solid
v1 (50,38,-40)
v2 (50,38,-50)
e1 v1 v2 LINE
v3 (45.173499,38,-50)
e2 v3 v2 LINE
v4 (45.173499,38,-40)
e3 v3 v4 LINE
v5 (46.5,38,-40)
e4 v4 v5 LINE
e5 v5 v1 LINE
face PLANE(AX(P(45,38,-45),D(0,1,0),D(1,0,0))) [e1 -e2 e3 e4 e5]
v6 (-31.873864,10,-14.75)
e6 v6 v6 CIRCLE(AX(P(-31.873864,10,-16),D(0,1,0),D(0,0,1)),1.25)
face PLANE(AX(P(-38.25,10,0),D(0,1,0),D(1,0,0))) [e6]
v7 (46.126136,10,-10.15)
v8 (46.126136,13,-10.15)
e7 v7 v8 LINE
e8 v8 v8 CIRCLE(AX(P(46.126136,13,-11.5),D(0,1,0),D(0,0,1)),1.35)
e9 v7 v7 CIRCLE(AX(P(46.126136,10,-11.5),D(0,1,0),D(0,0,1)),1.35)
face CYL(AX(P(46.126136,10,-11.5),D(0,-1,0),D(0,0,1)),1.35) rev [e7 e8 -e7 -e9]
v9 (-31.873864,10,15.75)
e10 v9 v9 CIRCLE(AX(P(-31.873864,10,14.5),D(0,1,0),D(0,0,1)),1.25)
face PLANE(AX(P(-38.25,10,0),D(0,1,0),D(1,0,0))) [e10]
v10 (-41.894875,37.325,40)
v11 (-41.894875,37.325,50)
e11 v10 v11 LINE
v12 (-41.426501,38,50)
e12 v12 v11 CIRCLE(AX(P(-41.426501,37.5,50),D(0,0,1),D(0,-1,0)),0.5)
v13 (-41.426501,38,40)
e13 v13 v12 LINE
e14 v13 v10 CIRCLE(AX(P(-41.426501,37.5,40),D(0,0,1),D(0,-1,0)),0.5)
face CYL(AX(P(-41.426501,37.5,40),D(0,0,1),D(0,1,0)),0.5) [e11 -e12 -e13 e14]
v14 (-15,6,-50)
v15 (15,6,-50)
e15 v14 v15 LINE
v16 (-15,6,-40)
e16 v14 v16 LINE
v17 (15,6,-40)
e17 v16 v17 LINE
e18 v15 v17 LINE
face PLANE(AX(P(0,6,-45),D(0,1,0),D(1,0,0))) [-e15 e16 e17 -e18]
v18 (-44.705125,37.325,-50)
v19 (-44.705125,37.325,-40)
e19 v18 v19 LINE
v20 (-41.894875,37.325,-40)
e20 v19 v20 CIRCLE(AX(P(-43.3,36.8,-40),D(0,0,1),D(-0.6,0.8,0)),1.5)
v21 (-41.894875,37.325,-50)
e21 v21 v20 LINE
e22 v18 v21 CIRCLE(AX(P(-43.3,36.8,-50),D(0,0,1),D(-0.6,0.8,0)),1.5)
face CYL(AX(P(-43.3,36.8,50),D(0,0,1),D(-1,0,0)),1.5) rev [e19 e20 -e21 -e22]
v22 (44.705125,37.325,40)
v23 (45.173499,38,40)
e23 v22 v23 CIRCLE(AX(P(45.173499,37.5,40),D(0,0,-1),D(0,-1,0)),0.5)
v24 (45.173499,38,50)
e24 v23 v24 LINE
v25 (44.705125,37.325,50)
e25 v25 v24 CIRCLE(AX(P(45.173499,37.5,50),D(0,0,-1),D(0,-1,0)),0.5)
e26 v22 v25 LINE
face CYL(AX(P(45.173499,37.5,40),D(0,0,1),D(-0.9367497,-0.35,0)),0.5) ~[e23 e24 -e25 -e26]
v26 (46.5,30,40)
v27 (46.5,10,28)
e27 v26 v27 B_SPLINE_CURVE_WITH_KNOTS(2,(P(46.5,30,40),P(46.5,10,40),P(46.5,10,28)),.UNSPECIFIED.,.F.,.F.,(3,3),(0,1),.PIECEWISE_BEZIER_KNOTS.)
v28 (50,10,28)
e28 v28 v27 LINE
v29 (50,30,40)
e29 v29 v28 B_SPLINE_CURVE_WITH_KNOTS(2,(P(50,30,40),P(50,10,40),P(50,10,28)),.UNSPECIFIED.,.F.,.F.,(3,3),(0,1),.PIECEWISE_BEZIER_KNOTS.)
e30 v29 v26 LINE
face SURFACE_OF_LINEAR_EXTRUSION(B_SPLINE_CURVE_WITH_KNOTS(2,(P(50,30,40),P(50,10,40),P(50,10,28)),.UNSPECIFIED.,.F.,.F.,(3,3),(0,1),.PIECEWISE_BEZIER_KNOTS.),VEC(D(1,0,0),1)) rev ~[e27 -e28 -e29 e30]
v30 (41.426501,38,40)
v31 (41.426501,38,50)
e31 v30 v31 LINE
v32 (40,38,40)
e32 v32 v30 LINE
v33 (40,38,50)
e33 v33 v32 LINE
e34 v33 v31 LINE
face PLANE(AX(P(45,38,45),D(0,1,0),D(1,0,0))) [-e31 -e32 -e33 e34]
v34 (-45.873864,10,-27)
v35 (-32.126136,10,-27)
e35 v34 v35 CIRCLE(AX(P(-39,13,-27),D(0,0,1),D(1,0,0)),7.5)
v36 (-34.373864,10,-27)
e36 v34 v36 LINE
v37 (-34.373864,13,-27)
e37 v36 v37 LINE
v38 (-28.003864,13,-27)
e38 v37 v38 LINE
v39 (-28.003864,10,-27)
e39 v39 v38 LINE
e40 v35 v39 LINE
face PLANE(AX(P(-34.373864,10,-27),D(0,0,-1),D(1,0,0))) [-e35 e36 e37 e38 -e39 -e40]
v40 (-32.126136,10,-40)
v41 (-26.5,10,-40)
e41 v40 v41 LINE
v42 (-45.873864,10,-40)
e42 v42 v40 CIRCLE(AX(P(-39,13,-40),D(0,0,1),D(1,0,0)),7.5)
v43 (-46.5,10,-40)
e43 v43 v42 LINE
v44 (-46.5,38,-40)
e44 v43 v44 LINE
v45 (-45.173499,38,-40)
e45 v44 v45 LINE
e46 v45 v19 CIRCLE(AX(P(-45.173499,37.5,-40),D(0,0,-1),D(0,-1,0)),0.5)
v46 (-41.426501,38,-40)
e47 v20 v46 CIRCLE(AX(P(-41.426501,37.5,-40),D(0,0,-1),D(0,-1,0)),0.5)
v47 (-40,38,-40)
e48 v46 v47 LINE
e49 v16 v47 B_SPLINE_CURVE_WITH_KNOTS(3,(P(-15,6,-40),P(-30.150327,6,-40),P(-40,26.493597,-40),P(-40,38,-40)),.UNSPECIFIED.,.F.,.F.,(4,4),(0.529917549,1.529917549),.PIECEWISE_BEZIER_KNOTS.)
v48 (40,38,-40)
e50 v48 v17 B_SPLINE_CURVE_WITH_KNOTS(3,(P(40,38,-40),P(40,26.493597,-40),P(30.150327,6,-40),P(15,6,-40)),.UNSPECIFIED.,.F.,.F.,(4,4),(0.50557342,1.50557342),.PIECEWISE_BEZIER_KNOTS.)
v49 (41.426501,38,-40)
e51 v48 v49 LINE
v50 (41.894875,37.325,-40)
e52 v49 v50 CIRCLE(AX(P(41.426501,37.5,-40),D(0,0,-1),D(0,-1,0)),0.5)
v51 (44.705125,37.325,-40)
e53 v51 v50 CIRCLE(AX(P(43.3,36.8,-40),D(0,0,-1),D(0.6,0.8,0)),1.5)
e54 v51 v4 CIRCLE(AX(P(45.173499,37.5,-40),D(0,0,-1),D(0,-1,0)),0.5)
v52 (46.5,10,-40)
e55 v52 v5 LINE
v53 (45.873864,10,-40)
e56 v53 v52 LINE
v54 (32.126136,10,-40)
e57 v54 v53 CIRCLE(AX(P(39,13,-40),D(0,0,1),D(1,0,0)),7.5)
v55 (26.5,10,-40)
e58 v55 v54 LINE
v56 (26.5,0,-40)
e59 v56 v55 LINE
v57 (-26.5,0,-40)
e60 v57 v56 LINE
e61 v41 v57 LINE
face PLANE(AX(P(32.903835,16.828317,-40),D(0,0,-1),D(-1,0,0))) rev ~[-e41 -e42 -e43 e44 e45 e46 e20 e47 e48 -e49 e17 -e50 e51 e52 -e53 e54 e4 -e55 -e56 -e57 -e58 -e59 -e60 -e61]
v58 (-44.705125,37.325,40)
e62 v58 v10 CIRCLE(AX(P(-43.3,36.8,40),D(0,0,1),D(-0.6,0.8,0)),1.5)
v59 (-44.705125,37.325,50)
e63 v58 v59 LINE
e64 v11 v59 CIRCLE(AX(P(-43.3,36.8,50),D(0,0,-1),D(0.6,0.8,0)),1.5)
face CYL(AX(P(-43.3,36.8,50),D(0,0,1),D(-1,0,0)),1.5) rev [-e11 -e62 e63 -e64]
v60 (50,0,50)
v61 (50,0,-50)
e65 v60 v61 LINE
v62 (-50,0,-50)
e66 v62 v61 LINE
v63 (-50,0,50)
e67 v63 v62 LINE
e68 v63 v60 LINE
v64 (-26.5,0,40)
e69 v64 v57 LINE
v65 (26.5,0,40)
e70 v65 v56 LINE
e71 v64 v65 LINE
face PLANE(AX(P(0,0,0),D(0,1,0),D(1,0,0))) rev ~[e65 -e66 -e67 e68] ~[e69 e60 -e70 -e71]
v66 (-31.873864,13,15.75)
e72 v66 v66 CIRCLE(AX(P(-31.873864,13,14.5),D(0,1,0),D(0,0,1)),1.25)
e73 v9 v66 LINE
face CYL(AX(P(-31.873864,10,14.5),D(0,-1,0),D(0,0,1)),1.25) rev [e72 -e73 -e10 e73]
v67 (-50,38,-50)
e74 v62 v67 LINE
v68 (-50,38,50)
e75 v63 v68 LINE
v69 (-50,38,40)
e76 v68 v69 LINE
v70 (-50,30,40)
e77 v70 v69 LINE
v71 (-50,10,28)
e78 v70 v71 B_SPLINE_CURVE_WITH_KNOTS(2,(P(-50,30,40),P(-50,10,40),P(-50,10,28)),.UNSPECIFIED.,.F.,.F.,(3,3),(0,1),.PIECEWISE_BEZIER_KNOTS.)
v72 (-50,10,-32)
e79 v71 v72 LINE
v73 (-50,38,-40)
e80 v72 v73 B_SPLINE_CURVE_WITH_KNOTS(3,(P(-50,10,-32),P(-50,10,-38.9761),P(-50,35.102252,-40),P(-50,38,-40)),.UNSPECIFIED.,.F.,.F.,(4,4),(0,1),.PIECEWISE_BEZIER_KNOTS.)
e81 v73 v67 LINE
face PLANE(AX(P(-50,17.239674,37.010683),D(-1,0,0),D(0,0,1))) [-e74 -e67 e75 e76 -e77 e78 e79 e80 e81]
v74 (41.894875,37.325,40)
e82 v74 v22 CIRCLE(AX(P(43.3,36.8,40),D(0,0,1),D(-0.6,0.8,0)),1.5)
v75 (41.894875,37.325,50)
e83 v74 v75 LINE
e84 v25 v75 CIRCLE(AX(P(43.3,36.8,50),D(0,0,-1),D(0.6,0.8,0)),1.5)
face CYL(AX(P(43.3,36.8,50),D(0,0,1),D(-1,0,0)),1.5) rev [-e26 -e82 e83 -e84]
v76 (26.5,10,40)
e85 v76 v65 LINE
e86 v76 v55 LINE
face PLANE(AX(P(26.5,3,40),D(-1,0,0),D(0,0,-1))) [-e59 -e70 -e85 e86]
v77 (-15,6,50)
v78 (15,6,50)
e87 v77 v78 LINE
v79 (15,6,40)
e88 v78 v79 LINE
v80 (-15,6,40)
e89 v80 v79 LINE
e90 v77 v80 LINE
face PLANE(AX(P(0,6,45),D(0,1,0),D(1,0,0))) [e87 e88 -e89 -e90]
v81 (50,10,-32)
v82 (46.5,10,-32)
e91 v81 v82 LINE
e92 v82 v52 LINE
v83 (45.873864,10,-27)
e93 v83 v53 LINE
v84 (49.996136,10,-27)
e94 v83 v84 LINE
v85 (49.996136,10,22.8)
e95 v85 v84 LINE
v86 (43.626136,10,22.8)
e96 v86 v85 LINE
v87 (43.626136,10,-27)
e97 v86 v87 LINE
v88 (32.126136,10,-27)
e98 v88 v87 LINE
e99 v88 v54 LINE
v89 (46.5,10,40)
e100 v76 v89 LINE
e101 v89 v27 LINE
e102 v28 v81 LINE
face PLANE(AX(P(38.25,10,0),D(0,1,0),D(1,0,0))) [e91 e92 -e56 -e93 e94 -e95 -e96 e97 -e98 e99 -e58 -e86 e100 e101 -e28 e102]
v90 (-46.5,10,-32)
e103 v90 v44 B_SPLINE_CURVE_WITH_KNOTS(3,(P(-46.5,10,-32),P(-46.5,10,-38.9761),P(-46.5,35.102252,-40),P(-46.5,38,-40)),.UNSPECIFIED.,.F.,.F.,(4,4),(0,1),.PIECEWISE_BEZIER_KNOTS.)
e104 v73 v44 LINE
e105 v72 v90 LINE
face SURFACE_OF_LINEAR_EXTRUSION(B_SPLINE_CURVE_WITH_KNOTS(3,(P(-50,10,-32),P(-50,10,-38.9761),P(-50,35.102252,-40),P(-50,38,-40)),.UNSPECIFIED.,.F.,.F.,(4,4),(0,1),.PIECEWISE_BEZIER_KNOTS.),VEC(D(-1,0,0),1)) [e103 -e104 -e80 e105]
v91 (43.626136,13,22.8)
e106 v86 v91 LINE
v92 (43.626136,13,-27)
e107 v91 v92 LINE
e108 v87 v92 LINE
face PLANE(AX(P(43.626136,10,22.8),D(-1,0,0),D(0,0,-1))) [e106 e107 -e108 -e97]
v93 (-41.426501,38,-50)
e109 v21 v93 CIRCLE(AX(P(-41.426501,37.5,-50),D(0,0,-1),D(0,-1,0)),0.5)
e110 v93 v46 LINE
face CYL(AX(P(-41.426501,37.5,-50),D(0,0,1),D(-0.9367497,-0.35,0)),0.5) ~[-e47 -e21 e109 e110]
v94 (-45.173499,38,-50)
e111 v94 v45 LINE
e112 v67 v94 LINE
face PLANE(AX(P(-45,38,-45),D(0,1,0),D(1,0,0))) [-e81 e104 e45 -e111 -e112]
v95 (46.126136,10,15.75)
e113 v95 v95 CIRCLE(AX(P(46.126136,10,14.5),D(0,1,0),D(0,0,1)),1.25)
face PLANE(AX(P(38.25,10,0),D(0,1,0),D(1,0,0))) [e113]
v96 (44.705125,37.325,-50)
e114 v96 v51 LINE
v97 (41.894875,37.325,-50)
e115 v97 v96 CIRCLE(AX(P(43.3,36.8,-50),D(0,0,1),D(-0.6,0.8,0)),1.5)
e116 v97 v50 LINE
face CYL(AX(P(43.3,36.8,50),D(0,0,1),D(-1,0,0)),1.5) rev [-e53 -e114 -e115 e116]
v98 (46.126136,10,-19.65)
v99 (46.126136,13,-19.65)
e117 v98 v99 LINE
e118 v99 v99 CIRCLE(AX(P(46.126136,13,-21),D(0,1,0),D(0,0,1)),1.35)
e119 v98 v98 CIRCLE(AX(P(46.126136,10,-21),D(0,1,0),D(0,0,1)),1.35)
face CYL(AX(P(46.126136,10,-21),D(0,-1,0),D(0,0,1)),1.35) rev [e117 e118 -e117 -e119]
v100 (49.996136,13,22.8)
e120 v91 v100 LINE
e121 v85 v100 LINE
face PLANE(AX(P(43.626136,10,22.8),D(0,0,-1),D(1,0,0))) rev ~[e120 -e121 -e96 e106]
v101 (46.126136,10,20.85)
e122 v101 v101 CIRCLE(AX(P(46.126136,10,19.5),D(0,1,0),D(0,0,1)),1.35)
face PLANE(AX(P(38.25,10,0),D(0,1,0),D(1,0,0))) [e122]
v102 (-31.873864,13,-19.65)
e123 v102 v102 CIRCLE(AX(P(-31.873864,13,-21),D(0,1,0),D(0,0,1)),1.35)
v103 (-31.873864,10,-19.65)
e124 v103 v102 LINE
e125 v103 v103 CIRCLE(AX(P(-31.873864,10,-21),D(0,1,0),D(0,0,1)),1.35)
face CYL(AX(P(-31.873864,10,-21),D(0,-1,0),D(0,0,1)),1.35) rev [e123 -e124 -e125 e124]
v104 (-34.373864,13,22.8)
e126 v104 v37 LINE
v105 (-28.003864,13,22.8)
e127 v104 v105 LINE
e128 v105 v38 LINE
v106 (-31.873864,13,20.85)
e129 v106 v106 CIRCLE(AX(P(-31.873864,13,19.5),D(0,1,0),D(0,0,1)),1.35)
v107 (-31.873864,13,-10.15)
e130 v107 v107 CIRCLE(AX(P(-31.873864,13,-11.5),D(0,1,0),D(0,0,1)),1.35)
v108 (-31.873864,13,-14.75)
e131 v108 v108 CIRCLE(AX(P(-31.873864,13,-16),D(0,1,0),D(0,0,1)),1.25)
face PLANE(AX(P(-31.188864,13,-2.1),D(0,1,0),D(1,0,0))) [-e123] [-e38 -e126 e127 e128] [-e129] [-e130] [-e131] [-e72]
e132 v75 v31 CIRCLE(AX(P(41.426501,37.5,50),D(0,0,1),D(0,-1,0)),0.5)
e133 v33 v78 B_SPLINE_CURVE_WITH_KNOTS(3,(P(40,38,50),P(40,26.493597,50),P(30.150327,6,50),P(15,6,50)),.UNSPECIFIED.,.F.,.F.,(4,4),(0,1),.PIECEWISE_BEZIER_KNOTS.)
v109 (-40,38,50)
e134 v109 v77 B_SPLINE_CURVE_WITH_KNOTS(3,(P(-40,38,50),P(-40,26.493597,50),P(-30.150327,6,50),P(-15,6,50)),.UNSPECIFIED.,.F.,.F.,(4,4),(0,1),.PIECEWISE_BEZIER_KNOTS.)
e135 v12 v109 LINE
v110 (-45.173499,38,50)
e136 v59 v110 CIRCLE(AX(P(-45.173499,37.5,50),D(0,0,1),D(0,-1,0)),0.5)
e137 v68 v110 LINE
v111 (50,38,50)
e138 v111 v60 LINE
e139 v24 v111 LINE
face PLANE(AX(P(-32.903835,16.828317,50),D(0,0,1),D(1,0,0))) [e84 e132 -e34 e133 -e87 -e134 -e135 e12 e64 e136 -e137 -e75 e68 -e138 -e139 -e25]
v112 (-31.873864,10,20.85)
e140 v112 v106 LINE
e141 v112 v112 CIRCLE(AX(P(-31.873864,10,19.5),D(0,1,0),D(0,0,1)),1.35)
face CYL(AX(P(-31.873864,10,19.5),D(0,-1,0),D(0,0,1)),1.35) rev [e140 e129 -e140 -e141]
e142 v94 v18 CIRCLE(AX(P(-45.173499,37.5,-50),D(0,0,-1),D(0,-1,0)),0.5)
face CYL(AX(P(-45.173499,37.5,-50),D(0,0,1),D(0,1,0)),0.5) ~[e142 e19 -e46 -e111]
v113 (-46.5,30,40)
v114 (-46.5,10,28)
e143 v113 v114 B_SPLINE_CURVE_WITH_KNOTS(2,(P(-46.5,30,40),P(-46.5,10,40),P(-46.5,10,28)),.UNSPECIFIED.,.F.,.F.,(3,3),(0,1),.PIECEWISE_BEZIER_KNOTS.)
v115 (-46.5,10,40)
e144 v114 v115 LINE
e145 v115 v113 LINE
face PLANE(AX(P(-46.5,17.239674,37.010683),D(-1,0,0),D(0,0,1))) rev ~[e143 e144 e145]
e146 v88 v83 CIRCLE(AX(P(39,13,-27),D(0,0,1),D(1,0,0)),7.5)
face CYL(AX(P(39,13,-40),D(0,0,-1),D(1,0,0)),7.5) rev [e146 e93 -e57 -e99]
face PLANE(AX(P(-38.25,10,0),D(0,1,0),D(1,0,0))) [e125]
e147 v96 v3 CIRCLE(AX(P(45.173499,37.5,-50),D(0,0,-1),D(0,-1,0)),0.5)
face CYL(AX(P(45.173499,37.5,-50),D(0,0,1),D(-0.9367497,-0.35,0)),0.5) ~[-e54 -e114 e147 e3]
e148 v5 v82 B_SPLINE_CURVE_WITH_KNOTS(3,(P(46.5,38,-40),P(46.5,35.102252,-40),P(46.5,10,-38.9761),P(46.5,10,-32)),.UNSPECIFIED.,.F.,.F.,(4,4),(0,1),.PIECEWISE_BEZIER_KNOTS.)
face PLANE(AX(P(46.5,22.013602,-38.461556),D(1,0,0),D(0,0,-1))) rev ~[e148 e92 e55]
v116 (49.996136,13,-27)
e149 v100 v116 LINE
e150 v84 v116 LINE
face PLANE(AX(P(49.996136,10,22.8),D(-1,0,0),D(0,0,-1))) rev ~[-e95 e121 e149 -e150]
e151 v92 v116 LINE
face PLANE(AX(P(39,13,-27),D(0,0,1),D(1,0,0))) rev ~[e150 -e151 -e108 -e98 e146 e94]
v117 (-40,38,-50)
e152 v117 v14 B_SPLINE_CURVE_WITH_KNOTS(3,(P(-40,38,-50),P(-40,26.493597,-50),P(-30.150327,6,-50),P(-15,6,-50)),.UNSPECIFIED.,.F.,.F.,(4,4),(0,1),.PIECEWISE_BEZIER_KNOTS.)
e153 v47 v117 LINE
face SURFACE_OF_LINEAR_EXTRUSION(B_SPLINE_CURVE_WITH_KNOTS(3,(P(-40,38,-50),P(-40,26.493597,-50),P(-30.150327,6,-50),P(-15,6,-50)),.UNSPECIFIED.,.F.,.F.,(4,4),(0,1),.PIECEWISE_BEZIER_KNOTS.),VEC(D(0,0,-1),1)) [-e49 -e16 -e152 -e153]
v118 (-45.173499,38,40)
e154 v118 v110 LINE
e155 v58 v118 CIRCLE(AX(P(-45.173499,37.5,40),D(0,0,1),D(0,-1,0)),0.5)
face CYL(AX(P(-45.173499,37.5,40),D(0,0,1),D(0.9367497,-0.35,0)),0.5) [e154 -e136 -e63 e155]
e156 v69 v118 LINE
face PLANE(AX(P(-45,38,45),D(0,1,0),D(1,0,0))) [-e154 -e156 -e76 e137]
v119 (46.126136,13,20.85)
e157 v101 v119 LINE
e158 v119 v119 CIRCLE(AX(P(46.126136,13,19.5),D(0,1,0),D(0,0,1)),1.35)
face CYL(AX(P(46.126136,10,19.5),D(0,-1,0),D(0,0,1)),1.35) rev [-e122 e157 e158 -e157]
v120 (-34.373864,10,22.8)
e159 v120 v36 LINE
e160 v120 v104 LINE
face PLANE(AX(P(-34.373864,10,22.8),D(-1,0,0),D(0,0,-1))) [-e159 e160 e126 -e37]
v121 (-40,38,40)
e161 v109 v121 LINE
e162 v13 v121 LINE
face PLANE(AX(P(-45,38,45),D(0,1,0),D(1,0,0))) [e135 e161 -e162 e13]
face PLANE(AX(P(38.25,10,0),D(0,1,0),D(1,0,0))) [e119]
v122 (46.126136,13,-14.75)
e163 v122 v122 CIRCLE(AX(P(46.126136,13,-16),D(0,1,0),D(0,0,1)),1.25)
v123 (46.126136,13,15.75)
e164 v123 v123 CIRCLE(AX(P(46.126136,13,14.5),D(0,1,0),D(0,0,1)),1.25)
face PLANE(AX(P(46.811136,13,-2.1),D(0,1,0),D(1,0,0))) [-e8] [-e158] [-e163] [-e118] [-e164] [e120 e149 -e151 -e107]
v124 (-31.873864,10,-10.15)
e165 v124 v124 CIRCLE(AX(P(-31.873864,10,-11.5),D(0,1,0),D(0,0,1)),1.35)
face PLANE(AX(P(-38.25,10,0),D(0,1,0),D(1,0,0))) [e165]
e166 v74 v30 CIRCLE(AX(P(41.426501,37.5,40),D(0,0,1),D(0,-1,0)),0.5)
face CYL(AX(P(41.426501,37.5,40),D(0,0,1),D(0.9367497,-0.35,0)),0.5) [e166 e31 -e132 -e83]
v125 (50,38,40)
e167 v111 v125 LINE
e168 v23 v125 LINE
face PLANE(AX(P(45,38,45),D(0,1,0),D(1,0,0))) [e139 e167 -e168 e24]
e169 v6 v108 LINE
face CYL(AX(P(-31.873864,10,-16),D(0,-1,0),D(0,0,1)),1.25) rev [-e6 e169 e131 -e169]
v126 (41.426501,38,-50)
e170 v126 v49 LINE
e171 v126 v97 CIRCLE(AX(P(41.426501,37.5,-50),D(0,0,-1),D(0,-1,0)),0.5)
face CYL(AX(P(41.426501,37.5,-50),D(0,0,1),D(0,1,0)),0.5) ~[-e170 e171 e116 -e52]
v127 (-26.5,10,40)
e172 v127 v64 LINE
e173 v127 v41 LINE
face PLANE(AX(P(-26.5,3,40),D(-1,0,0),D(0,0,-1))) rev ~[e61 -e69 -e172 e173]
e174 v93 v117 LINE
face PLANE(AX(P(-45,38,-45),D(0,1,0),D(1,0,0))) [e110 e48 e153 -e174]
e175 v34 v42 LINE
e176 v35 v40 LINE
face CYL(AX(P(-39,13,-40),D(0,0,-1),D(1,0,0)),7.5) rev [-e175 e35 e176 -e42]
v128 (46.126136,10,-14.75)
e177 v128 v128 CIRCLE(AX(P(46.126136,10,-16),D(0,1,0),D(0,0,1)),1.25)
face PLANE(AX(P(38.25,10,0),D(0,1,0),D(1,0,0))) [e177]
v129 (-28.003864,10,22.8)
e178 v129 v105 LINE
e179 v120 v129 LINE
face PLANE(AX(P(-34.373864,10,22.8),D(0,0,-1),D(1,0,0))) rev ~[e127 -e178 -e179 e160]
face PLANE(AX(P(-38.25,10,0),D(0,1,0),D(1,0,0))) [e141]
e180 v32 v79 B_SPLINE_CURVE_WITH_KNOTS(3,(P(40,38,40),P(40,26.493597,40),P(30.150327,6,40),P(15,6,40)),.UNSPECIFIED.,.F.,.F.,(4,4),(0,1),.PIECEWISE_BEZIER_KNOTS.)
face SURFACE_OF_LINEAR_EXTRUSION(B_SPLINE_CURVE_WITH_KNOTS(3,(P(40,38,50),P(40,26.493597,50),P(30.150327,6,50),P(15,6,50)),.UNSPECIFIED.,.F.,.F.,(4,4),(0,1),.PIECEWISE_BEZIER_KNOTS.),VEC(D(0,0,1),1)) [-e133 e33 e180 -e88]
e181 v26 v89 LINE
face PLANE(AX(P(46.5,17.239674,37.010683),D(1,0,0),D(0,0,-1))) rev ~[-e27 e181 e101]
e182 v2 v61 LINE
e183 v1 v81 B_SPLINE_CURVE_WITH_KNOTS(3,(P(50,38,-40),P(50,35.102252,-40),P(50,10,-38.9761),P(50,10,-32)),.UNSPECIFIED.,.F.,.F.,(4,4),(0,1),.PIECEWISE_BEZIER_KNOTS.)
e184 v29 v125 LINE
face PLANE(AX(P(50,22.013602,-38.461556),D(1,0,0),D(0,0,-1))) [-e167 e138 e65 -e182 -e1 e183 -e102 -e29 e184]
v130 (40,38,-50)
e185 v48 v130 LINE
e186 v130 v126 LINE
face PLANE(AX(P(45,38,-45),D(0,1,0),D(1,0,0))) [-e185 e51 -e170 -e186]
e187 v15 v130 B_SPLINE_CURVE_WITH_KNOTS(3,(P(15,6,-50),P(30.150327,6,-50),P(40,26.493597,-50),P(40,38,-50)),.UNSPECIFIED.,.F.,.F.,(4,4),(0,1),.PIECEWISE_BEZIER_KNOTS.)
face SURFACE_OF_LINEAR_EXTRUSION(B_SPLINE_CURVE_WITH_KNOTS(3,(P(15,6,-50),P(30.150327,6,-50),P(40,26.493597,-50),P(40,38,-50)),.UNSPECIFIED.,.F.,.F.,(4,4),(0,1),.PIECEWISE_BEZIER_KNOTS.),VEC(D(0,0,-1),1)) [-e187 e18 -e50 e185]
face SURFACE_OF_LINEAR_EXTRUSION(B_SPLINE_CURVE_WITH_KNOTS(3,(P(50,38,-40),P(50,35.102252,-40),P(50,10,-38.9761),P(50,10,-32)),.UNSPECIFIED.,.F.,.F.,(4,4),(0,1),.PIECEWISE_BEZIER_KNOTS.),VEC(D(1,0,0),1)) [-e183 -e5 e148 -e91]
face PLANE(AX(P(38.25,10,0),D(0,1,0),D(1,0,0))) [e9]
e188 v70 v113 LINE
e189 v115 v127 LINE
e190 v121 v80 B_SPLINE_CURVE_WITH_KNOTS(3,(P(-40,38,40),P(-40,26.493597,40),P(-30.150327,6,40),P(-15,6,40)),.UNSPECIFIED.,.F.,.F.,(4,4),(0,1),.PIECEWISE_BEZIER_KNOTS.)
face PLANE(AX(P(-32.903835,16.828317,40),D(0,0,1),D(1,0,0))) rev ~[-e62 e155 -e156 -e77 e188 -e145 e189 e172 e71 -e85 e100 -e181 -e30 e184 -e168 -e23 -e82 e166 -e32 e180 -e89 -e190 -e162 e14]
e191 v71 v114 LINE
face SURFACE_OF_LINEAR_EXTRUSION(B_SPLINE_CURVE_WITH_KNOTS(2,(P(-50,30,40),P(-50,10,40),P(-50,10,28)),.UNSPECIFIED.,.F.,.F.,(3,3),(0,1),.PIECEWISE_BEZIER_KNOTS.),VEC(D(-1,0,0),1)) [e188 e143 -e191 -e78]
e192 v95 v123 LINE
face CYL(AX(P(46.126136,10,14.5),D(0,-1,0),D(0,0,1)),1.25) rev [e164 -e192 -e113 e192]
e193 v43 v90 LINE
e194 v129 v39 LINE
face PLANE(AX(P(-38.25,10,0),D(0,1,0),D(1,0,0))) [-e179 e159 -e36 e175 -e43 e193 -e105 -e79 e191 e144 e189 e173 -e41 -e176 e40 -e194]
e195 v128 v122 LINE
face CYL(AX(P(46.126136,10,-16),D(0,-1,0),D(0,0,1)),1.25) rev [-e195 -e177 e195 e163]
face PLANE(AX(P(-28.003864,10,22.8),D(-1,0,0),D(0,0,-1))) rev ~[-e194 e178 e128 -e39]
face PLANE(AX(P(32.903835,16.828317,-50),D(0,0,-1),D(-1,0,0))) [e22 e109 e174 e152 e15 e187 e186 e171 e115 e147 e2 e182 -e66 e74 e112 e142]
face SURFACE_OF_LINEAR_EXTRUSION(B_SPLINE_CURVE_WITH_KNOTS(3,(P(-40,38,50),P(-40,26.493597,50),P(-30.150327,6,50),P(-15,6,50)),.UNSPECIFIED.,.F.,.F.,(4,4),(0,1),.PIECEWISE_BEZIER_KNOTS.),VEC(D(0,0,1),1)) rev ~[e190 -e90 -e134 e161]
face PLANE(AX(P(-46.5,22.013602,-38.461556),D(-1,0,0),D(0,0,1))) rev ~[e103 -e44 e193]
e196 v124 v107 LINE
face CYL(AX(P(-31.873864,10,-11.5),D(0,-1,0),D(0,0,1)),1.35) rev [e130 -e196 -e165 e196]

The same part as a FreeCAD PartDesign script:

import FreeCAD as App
import Part
import Sketcher
Q = App.Units.Quantity


def edges_at(feature, points):
    """Names of the edges that pass closest to the given points."""
    edges = feature.Shape.Edges
    near = lambda p: min(range(len(edges)), key=lambda i: edges[i].distToShape(Part.Vertex(*p))[0])
    return sorted({f"Edge{near(p) + 1}" for p in points})

doc = App.newDocument("Part")
body = doc.addObject("PartDesign::Body", "Body")

# Sketch on XZ plane
sketch1 = doc.addObject("Sketcher::SketchObject", "Sketch")
body.addObject(sketch1)
sketch1.AttachmentSupport = (doc.XZ_Plane, [""])
sketch1.MapMode = "FlatFace"
sketch1.addGeometry([
    Part.LineSegment(App.Vector(-50, -50, 0), App.Vector(-50, 50, 0)),
    Part.LineSegment(App.Vector(-50, 50, 0), App.Vector(50, 50, 0)),
    Part.LineSegment(App.Vector(50, 50, 0), App.Vector(50, -50, 0)),
    Part.LineSegment(App.Vector(50, -50, 0), App.Vector(-50, -50, 0)),
], False)
sketch1.addConstraint([
    Sketcher.Constraint("Coincident", 0, 2, 1, 1),
    Sketcher.Constraint("Coincident", 1, 2, 2, 1),
    Sketcher.Constraint("Coincident", 2, 2, 3, 1),
    Sketcher.Constraint("Coincident", 3, 2, 0, 1),
    Sketcher.Constraint("Vertical", 0),
    Sketcher.Constraint("Horizontal", 1),
    Sketcher.Constraint("Vertical", 2),
    Sketcher.Constraint("Horizontal", 3),
    Sketcher.Constraint("Symmetric", 0, 2, 2, 2, -1, 1),
    Sketcher.Constraint("Equal", 3, 0),
    Sketcher.Constraint("DistanceX", 1, 1, 1, 2, Q("100 mm")),
])
pad1 = doc.addObject("PartDesign::Pad", "Pad")
body.addObject(pad1)
pad1.Profile = sketch1
pad1.Length = 3
pad1.Reversed = True

# Sketch on XZ plane
sketch2 = doc.addObject("Sketcher::SketchObject", "Sketch001")
body.addObject(sketch2)
sketch2.AttachmentSupport = (doc.XZ_Plane, [""])
sketch2.MapMode = "FlatFace"
sketch2.AttachmentOffset = App.Placement(App.Vector(0, 0, -3), App.Rotation())
sketch2.addGeometry([
    Part.LineSegment(App.Vector(40, -50, 0), App.Vector(40, -40, 0)),  # 0
    Part.LineSegment(App.Vector(40, -40, 0), App.Vector(50, -40, 0)),  # 1
    Part.LineSegment(App.Vector(50, -40, 0), App.Vector(50, -50, 0)),  # 2
    Part.LineSegment(App.Vector(50, -50, 0), App.Vector(40, -50, 0)),  # 3
    Part.LineSegment(App.Vector(-50, -50, 0), App.Vector(-50, -40, 0)),  # 4
    Part.LineSegment(App.Vector(-50, -40, 0), App.Vector(-40, -40, 0)),  # 5
    Part.LineSegment(App.Vector(-40, -40, 0), App.Vector(-40, -50, 0)),  # 6
    Part.LineSegment(App.Vector(-40, -50, 0), App.Vector(-50, -50, 0)),  # 7
    Part.LineSegment(App.Vector(40, 40, 0), App.Vector(40, 50, 0)),  # 8
    Part.LineSegment(App.Vector(40, 50, 0), App.Vector(50, 50, 0)),  # 9
    Part.LineSegment(App.Vector(50, 50, 0), App.Vector(50, 40, 0)),  # 10
    Part.LineSegment(App.Vector(50, 40, 0), App.Vector(40, 40, 0)),  # 11
    Part.LineSegment(App.Vector(-50, 40, 0), App.Vector(-50, 50, 0)),  # 12
    Part.LineSegment(App.Vector(-50, 50, 0), App.Vector(-40, 50, 0)),  # 13
    Part.LineSegment(App.Vector(-40, 50, 0), App.Vector(-40, 40, 0)),  # 14
    Part.LineSegment(App.Vector(-40, 40, 0), App.Vector(-50, 40, 0)),  # 15
], False)
sketch2.addConstraint([
    Sketcher.Constraint("Coincident", 0, 2, 1, 1),
    Sketcher.Constraint("Coincident", 1, 2, 2, 1),
    Sketcher.Constraint("Coincident", 2, 2, 3, 1),
    Sketcher.Constraint("Coincident", 3, 2, 0, 1),
    Sketcher.Constraint("Coincident", 4, 2, 5, 1),
    Sketcher.Constraint("Coincident", 5, 2, 6, 1),
    Sketcher.Constraint("Coincident", 6, 2, 7, 1),
    Sketcher.Constraint("Coincident", 7, 2, 4, 1),
    Sketcher.Constraint("Coincident", 8, 2, 9, 1),
    Sketcher.Constraint("Coincident", 9, 2, 10, 1),
    Sketcher.Constraint("Coincident", 10, 2, 11, 1),
    Sketcher.Constraint("Coincident", 11, 2, 8, 1),
    Sketcher.Constraint("Coincident", 12, 2, 13, 1),
    Sketcher.Constraint("Coincident", 13, 2, 14, 1),
    Sketcher.Constraint("Coincident", 14, 2, 15, 1),
    Sketcher.Constraint("Coincident", 15, 2, 12, 1),
    Sketcher.Constraint("Vertical", 0),
    Sketcher.Constraint("Horizontal", 1),
    Sketcher.Constraint("Vertical", 2),
    Sketcher.Constraint("Horizontal", 3),
    Sketcher.Constraint("Vertical", 4),
    Sketcher.Constraint("Horizontal", 5),
    Sketcher.Constraint("Vertical", 6),
    Sketcher.Constraint("Horizontal", 7),
    Sketcher.Constraint("Vertical", 8),
    Sketcher.Constraint("Horizontal", 9),
    Sketcher.Constraint("Vertical", 10),
    Sketcher.Constraint("Horizontal", 11),
    Sketcher.Constraint("Vertical", 12),
    Sketcher.Constraint("Horizontal", 13),
    Sketcher.Constraint("Vertical", 14),
    Sketcher.Constraint("Horizontal", 15),
    Sketcher.Constraint("Symmetric", 6, 2, 8, 2, -1, 1),
    Sketcher.Constraint("Symmetric", 4, 2, 10, 2, -1, 1),
    Sketcher.Constraint("Symmetric", 2, 2, 12, 2, -1, 1),
    Sketcher.Constraint("Symmetric", 0, 2, 14, 2, -1, 1),
    Sketcher.Constraint("Symmetric", 1, 2, 4, 2, -2),
    Sketcher.Constraint("Symmetric", 3, 2, 6, 2, -2),
    Sketcher.Constraint("Equal", 15, 0),
    Sketcher.Constraint("DistanceX", 1, 1, 1, 2, Q("10 mm")),
    Sketcher.Constraint("DistanceX", -1, 1, 0, 2, Q("40 mm")),
    Sketcher.Constraint("DistanceY", 0, 2, -1, 1, Q("40 mm")),
])
pad2 = doc.addObject("PartDesign::Pad", "Pad001")
body.addObject(pad2)
pad2.Profile = sketch2
pad2.Length = 35
pad2.Reversed = True

# Sketch on XY plane
sketch3 = doc.addObject("Sketcher::SketchObject", "Sketch002")
body.addObject(sketch3)
sketch3.AttachmentSupport = (doc.XY_Plane, [""])
sketch3.MapMode = "FlatFace"
sketch3.AttachmentOffset = App.Placement(App.Vector(0, 0, 50), App.Rotation())
sketch3.addGeometry([
    Part.Circle(App.Vector(43.3, 36.8, 0), App.Vector(0, 0, 1), 1.5),
    Part.Circle(App.Vector(-43.3, 36.8, 0), App.Vector(0, 0, 1), 1.5),
], False)
sketch3.addConstraint([
    Sketcher.Constraint("Equal", 0, 1),
    Sketcher.Constraint("Symmetric", 0, 3, 1, 3, -2),
    Sketcher.Constraint("Diameter", 0, Q("3 mm")),
    Sketcher.Constraint("DistanceX", -1, 1, 0, 3, Q("43.3 mm")),
    Sketcher.Constraint("DistanceY", -1, 1, 0, 3, Q("36.8 mm")),
])
pocket1 = doc.addObject("PartDesign::Pocket", "Pocket")
body.addObject(pocket1)
pocket1.Profile = sketch3
pocket1.Length = 100
doc.recompute()

fillet = doc.addObject("PartDesign::Fillet", "Fillet")
body.addObject(fillet)
fillet.Base = (pocket1, edges_at(pocket1, [
    (-44.2, 38, 45),
    (-42.4, 38, 45),
    (42.4, 38, 45),
    (44.2, 38, 45),
    (-42.4, 38, -45),
    (-44.2, 38, -45),
    (44.2, 38, -45),
    (42.4, 38, -45),
]))
fillet.Radius = 0.5

# Sketch on XZ plane
sketch4 = doc.addObject("Sketcher::SketchObject", "Sketch003")
body.addObject(sketch4)
sketch4.AttachmentSupport = (doc.XZ_Plane, [""])
sketch4.MapMode = "FlatFace"
sketch4.AttachmentOffset = App.Placement(App.Vector(0, 0, -3), App.Rotation())
sketch4.addGeometry([
    Part.LineSegment(App.Vector(-40, 40, 0), App.Vector(-40, 50, 0)),  # 0
    Part.LineSegment(App.Vector(-40, 50, 0), App.Vector(40, 50, 0)),  # 1
    Part.LineSegment(App.Vector(40, 50, 0), App.Vector(40, 40, 0)),  # 2
    Part.LineSegment(App.Vector(40, 40, 0), App.Vector(-40, 40, 0)),  # 3
    Part.LineSegment(App.Vector(-40, -50, 0), App.Vector(-40, -40, 0)),  # 4
    Part.LineSegment(App.Vector(-40, -40, 0), App.Vector(40, -40, 0)),  # 5
    Part.LineSegment(App.Vector(40, -40, 0), App.Vector(40, -50, 0)),  # 6
    Part.LineSegment(App.Vector(40, -50, 0), App.Vector(-40, -50, 0)),  # 7
], False)
sketch4.addConstraint([
    Sketcher.Constraint("Coincident", 0, 2, 1, 1),
    Sketcher.Constraint("Coincident", 1, 2, 2, 1),
    Sketcher.Constraint("Coincident", 2, 2, 3, 1),
    Sketcher.Constraint("Coincident", 3, 2, 0, 1),
    Sketcher.Constraint("Coincident", 4, 2, 5, 1),
    Sketcher.Constraint("Coincident", 5, 2, 6, 1),
    Sketcher.Constraint("Coincident", 6, 2, 7, 1),
    Sketcher.Constraint("Coincident", 7, 2, 4, 1),
    Sketcher.Constraint("Vertical", 0),
    Sketcher.Constraint("Horizontal", 1),
    Sketcher.Constraint("Vertical", 2),
    Sketcher.Constraint("Horizontal", 3),
    Sketcher.Constraint("Vertical", 4),
    Sketcher.Constraint("Horizontal", 5),
    Sketcher.Constraint("Vertical", 6),
    Sketcher.Constraint("Horizontal", 7),
    Sketcher.Constraint("Symmetric", 2, 2, 4, 2, -1, 1),
    Sketcher.Constraint("Symmetric", 0, 2, 6, 2, -1, 1),
    Sketcher.Constraint("Vertical", 3, 2, 4, 2),
    Sketcher.Constraint("DistanceX", 1, 1, 1, 2, Q("80 mm")),
    Sketcher.Constraint("DistanceY", 0, 1, 0, 2, Q("10 mm")),
    Sketcher.Constraint("DistanceY", -1, 1, 0, 2, Q("50 mm")),
])
pad3 = doc.addObject("PartDesign::Pad", "Pad002")
body.addObject(pad3)
pad3.Profile = sketch4
pad3.Length = 3
pad3.Reversed = True

# Sketch on XY plane
sketch5 = doc.addObject("Sketcher::SketchObject", "Sketch004")
body.addObject(sketch5)
sketch5.AttachmentSupport = (doc.XY_Plane, [""])
sketch5.MapMode = "FlatFace"
sketch5.AttachmentOffset = App.Placement(App.Vector(0, 0, 50), App.Rotation())
sketch5.addGeometry([
    Part.LineSegment(App.Vector(-40, 38, 0), App.Vector(-40, 6, 0)),  # 0
    Part.LineSegment(App.Vector(-40, 6, 0), App.Vector(-15, 6, 0)),  # 1
    Part.BSplineCurve([App.Vector(-40, 38, 0), App.Vector(-40, 26.493597, 0), App.Vector(-30.150327, 6, 0), App.Vector(-15, 6, 0)], [4, 4], [0, 1], False, 3, [1, 1, 1, 1], False),  # 2
    Part.LineSegment(App.Vector(15, 6, 0), App.Vector(40, 6, 0)),  # 3
    Part.LineSegment(App.Vector(40, 6, 0), App.Vector(40, 38, 0)),  # 4
    Part.BSplineCurve([App.Vector(40, 38, 0), App.Vector(40, 26.493597, 0), App.Vector(30.150327, 6, 0), App.Vector(15, 6, 0)], [4, 4], [0, 1], False, 3, [1, 1, 1, 1], False),  # 5
], False)
sketch5.addConstraint([
    Sketcher.Constraint("Block", 2),
    Sketcher.Constraint("Block", 5),
    Sketcher.Constraint("Coincident", 0, 2, 1, 1),
    Sketcher.Constraint("Coincident", 1, 2, 2, 2),
    Sketcher.Constraint("Coincident", 2, 1, 0, 1),
    Sketcher.Constraint("Coincident", 3, 2, 4, 1),
    Sketcher.Constraint("Coincident", 4, 2, 5, 1),
    Sketcher.Constraint("Coincident", 5, 2, 3, 1),
    Sketcher.Constraint("Vertical", 0),
    Sketcher.Constraint("Horizontal", 1),
    Sketcher.Constraint("Horizontal", 3),
    Sketcher.Constraint("Vertical", 4),
])
pad4 = doc.addObject("PartDesign::Pad", "Pad003")
body.addObject(pad4)
pad4.Profile = sketch5
pad4.Length = 10
pad4.Reversed = True

# Sketch on XY plane
sketch6 = doc.addObject("Sketcher::SketchObject", "Sketch005")
body.addObject(sketch6)
sketch6.AttachmentSupport = (doc.XY_Plane, [""])
sketch6.MapMode = "FlatFace"
sketch6.AttachmentOffset = App.Placement(App.Vector(0, 0, -50), App.Rotation())
sketch6.addGeometry([
    Part.LineSegment(App.Vector(40, 6, 0), App.Vector(15, 6, 0)),  # 0
    Part.BSplineCurve([App.Vector(15, 6, 0), App.Vector(30.150327, 6, 0), App.Vector(40, 26.493597, 0), App.Vector(40, 38, 0)], [4, 4], [0, 1], False, 3, [1, 1, 1, 1], False),  # 1
    Part.LineSegment(App.Vector(40, 38, 0), App.Vector(40, 6, 0)),  # 2
    Part.LineSegment(App.Vector(-40, 6, 0), App.Vector(-40, 38, 0)),  # 3
    Part.BSplineCurve([App.Vector(-40, 38, 0), App.Vector(-40, 26.493597, 0), App.Vector(-30.150327, 6, 0), App.Vector(-15, 6, 0)], [4, 4], [0, 1], False, 3, [1, 1, 1, 1], False),  # 4
    Part.LineSegment(App.Vector(-15, 6, 0), App.Vector(-40, 6, 0)),  # 5
], False)
sketch6.addConstraint([
    Sketcher.Constraint("Block", 1),
    Sketcher.Constraint("Block", 4),
    Sketcher.Constraint("Coincident", 0, 2, 1, 1),
    Sketcher.Constraint("Coincident", 1, 2, 2, 1),
    Sketcher.Constraint("Coincident", 2, 2, 0, 1),
    Sketcher.Constraint("Coincident", 3, 2, 4, 1),
    Sketcher.Constraint("Coincident", 4, 2, 5, 1),
    Sketcher.Constraint("Coincident", 5, 2, 3, 1),
    Sketcher.Constraint("Horizontal", 0),
    Sketcher.Constraint("Vertical", 2),
    Sketcher.Constraint("Vertical", 3),
    Sketcher.Constraint("Horizontal", 5),
])
pad5 = doc.addObject("PartDesign::Pad", "Pad004")
body.addObject(pad5)
pad5.Profile = sketch6
pad5.Length = 10

# Sketch on XZ plane
sketch7 = doc.addObject("Sketcher::SketchObject", "Sketch006")
body.addObject(sketch7)
sketch7.AttachmentSupport = (doc.XZ_Plane, [""])
sketch7.MapMode = "FlatFace"
sketch7.AttachmentOffset = App.Placement(App.Vector(0, 0, -3), App.Rotation())
sketch7.addGeometry([
    Part.LineSegment(App.Vector(-50, -40, 0), App.Vector(-50, 40, 0)),  # 0
    Part.LineSegment(App.Vector(-50, 40, 0), App.Vector(-26, 40, 0)),  # 1
    Part.LineSegment(App.Vector(-26, 40, 0), App.Vector(-26, -40, 0)),  # 2
    Part.LineSegment(App.Vector(-26, -40, 0), App.Vector(-50, -40, 0)),  # 3
    Part.LineSegment(App.Vector(26, -40, 0), App.Vector(26, 40, 0)),  # 4
    Part.LineSegment(App.Vector(26, 40, 0), App.Vector(50, 40, 0)),  # 5
    Part.LineSegment(App.Vector(50, 40, 0), App.Vector(50, -40, 0)),  # 6
    Part.LineSegment(App.Vector(50, -40, 0), App.Vector(26, -40, 0)),  # 7
], False)
sketch7.addConstraint([
    Sketcher.Constraint("Coincident", 0, 2, 1, 1),
    Sketcher.Constraint("Coincident", 1, 2, 2, 1),
    Sketcher.Constraint("Coincident", 2, 2, 3, 1),
    Sketcher.Constraint("Coincident", 3, 2, 0, 1),
    Sketcher.Constraint("Coincident", 4, 2, 5, 1),
    Sketcher.Constraint("Coincident", 5, 2, 6, 1),
    Sketcher.Constraint("Coincident", 6, 2, 7, 1),
    Sketcher.Constraint("Coincident", 7, 2, 4, 1),
    Sketcher.Constraint("Vertical", 0),
    Sketcher.Constraint("Horizontal", 1),
    Sketcher.Constraint("Vertical", 2),
    Sketcher.Constraint("Horizontal", 3),
    Sketcher.Constraint("Vertical", 4),
    Sketcher.Constraint("Horizontal", 5),
    Sketcher.Constraint("Vertical", 6),
    Sketcher.Constraint("Horizontal", 7),
    Sketcher.Constraint("Symmetric", 2, 2, 4, 2, -1, 1),
    Sketcher.Constraint("Symmetric", 0, 2, 6, 2, -1, 1),
    Sketcher.Constraint("Horizontal", 1, 2, 4, 2),
    Sketcher.Constraint("DistanceY", 0, 1, 0, 2, Q("80 mm")),
    Sketcher.Constraint("DistanceX", 1, 1, 1, 2, Q("23.5 mm")),
    Sketcher.Constraint("DistanceX", 0, 2, -1, 1, Q("50 mm")),
])
pad6 = doc.addObject("PartDesign::Pad", "Pad005")
body.addObject(pad6)
pad6.Profile = sketch7
pad6.Length = 7
pad6.Reversed = True

# Sketch on YZ plane
sketch8 = doc.addObject("Sketcher::SketchObject", "Sketch007")
body.addObject(sketch8)
sketch8.AttachmentSupport = (doc.YZ_Plane, [""])
sketch8.MapMode = "FlatFace"
sketch8.AttachmentOffset = App.Placement(App.Vector(0, 0, 50), App.Rotation())
sketch8.addGeometry([
    Part.LineSegment(App.Vector(10, -32, 0), App.Vector(10, -40, 0)),  # 0
    Part.LineSegment(App.Vector(10, -40, 0), App.Vector(38, -40, 0)),  # 1
    Part.BSplineCurve([App.Vector(38, -40, 0), App.Vector(35.102252, -40, 0), App.Vector(10, -38.9761, 0), App.Vector(10, -32, 0)], [4, 4], [0, 1], False, 3, [1, 1, 1, 1], False),  # 2
    Part.LineSegment(App.Vector(30, 40, 0), App.Vector(10, 40, 0)),  # 3
    Part.LineSegment(App.Vector(10, 40, 0), App.Vector(10, 28, 0)),  # 4
    Part.BSplineCurve([App.Vector(30, 40, 0), App.Vector(10, 40, 0), App.Vector(10, 28, 0)], [3, 3], [0, 1], False, 2, [1, 1, 1], False),  # 5
], False)
sketch8.addConstraint([
    Sketcher.Constraint("Block", 2),
    Sketcher.Constraint("Block", 5),
    Sketcher.Constraint("Coincident", 0, 2, 1, 1),
    Sketcher.Constraint("Coincident", 1, 2, 2, 1),
    Sketcher.Constraint("Coincident", 2, 2, 0, 1),
    Sketcher.Constraint("Coincident", 3, 2, 4, 1),
    Sketcher.Constraint("Coincident", 4, 2, 5, 2),
    Sketcher.Constraint("Coincident", 5, 1, 3, 1),
    Sketcher.Constraint("Vertical", 0),
    Sketcher.Constraint("Horizontal", 1),
    Sketcher.Constraint("Horizontal", 3),
    Sketcher.Constraint("Vertical", 4),
])
pad7 = doc.addObject("PartDesign::Pad", "Pad006")
body.addObject(pad7)
pad7.Profile = sketch8
pad7.Length = 3.5
pad7.Reversed = True

# Sketch on YZ plane
sketch9 = doc.addObject("Sketcher::SketchObject", "Sketch008")
body.addObject(sketch9)
sketch9.AttachmentSupport = (doc.YZ_Plane, [""])
sketch9.MapMode = "FlatFace"
sketch9.AttachmentOffset = App.Placement(App.Vector(0, 0, -50), App.Rotation())
sketch9.addGeometry([
    Part.LineSegment(App.Vector(10, 40, 0), App.Vector(30, 40, 0)),  # 0
    Part.BSplineCurve([App.Vector(30, 40, 0), App.Vector(10, 40, 0), App.Vector(10, 28, 0)], [3, 3], [0, 1], False, 2, [1, 1, 1], False),  # 1
    Part.LineSegment(App.Vector(10, 28, 0), App.Vector(10, 40, 0)),  # 2
    Part.LineSegment(App.Vector(10, -40, 0), App.Vector(10, -32, 0)),  # 3
    Part.BSplineCurve([App.Vector(10, -32, 0), App.Vector(10, -38.9761, 0), App.Vector(35.102252, -40, 0), App.Vector(38, -40, 0)], [4, 4], [0, 1], False, 3, [1, 1, 1, 1], False),  # 4
    Part.LineSegment(App.Vector(38, -40, 0), App.Vector(10, -40, 0)),  # 5
], False)
sketch9.addConstraint([
    Sketcher.Constraint("Block", 1),
    Sketcher.Constraint("Block", 4),
    Sketcher.Constraint("Coincident", 0, 2, 1, 1),
    Sketcher.Constraint("Coincident", 1, 2, 2, 1),
    Sketcher.Constraint("Coincident", 2, 2, 0, 1),
    Sketcher.Constraint("Coincident", 3, 2, 4, 1),
    Sketcher.Constraint("Coincident", 4, 2, 5, 1),
    Sketcher.Constraint("Coincident", 5, 2, 3, 1),
    Sketcher.Constraint("Horizontal", 0),
    Sketcher.Constraint("Vertical", 2),
    Sketcher.Constraint("Vertical", 3),
    Sketcher.Constraint("Horizontal", 5),
])
pad8 = doc.addObject("PartDesign::Pad", "Pad007")
body.addObject(pad8)
pad8.Profile = sketch9
pad8.Length = 3.5

# Sketch on XY plane
sketch10 = doc.addObject("Sketcher::SketchObject", "Sketch009")
body.addObject(sketch10)
sketch10.AttachmentSupport = (doc.XY_Plane, [""])
sketch10.MapMode = "FlatFace"
sketch10.AttachmentOffset = App.Placement(App.Vector(0, 0, -40), App.Rotation())
sketch10.addGeometry([
    Part.Circle(App.Vector(-39, 13, 0), App.Vector(0, 0, 1), 8),
    Part.Circle(App.Vector(39, 13, 0), App.Vector(0, 0, 1), 8),
], False)
sketch10.addConstraint([
    Sketcher.Constraint("Equal", 0, 1),
    Sketcher.Constraint("Symmetric", 0, 3, 1, 3, -2),
    Sketcher.Constraint("Diameter", 0, Q("15 mm")),
    Sketcher.Constraint("DistanceX", 0, 3, -1, 1, Q("39 mm")),
    Sketcher.Constraint("DistanceY", -1, 1, 0, 3, Q("13 mm")),
])
pocket2 = doc.addObject("PartDesign::Pocket", "Pocket001")
body.addObject(pocket2)
pocket2.Profile = sketch10
pocket2.Length = 13
pocket2.Reversed = True

# Sketch on XZ plane
sketch11 = doc.addObject("Sketcher::SketchObject", "Sketch010")
body.addObject(sketch11)
sketch11.AttachmentSupport = (doc.XZ_Plane, [""])
sketch11.MapMode = "FlatFace"
sketch11.AttachmentOffset = App.Placement(App.Vector(0, 0, -10), App.Rotation())
sketch11.addGeometry([
    Part.LineSegment(App.Vector(-34.4, -27, 0), App.Vector(-34.4, 22.8, 0)),  # 0
    Part.LineSegment(App.Vector(-34.4, 22.8, 0), App.Vector(-28, 22.8, 0)),  # 1
    Part.LineSegment(App.Vector(-28, 22.8, 0), App.Vector(-28, -27, 0)),  # 2
    Part.LineSegment(App.Vector(-28, -27, 0), App.Vector(-34.4, -27, 0)),  # 3
    Part.Circle(App.Vector(-31.9, 19.5, 0), App.Vector(0, 0, 1), 1.4),  # 4
    Part.Circle(App.Vector(-31.9, 14.5, 0), App.Vector(0, 0, 1), 1.2),  # 5
    Part.Circle(App.Vector(-31.9, -11.5, 0), App.Vector(0, 0, 1), 1.4),  # 6
    Part.Circle(App.Vector(-31.9, -16, 0), App.Vector(0, 0, 1), 1.2),  # 7
    Part.Circle(App.Vector(-31.9, -21, 0), App.Vector(0, 0, 1), 1.4),  # 8
    Part.LineSegment(App.Vector(43.6, -27, 0), App.Vector(43.6, 22.8, 0)),  # 9
    Part.LineSegment(App.Vector(43.6, 22.8, 0), App.Vector(50, 22.8, 0)),  # 10
    Part.LineSegment(App.Vector(50, 22.8, 0), App.Vector(50, -27, 0)),  # 11
    Part.LineSegment(App.Vector(50, -27, 0), App.Vector(43.6, -27, 0)),  # 12
    Part.Circle(App.Vector(46.1, 19.5, 0), App.Vector(0, 0, 1), 1.4),  # 13
    Part.Circle(App.Vector(46.1, 14.5, 0), App.Vector(0, 0, 1), 1.2),  # 14
    Part.Circle(App.Vector(46.1, -11.5, 0), App.Vector(0, 0, 1), 1.4),  # 15
    Part.Circle(App.Vector(46.1, -16, 0), App.Vector(0, 0, 1), 1.2),  # 16
    Part.Circle(App.Vector(46.1, -21, 0), App.Vector(0, 0, 1), 1.4),  # 17
], False)
sketch11.addConstraint([
    Sketcher.Constraint("Coincident", 0, 2, 1, 1),
    Sketcher.Constraint("Coincident", 1, 2, 2, 1),
    Sketcher.Constraint("Coincident", 2, 2, 3, 1),
    Sketcher.Constraint("Coincident", 3, 2, 0, 1),
    Sketcher.Constraint("Coincident", 9, 2, 10, 1),
    Sketcher.Constraint("Coincident", 10, 2, 11, 1),
    Sketcher.Constraint("Coincident", 11, 2, 12, 1),
    Sketcher.Constraint("Coincident", 12, 2, 9, 1),
    Sketcher.Constraint("Vertical", 0),
    Sketcher.Constraint("Horizontal", 1),
    Sketcher.Constraint("Vertical", 2),
    Sketcher.Constraint("Horizontal", 3),
    Sketcher.Constraint("Vertical", 9),
    Sketcher.Constraint("Horizontal", 10),
    Sketcher.Constraint("Vertical", 11),
    Sketcher.Constraint("Horizontal", 12),
    Sketcher.Constraint("Equal", 4, 6),
    Sketcher.Constraint("Equal", 5, 7),
    Sketcher.Constraint("Equal", 6, 8),
    Sketcher.Constraint("Equal", 8, 13),
    Sketcher.Constraint("Equal", 7, 14),
    Sketcher.Constraint("Equal", 13, 15),
    Sketcher.Constraint("Equal", 14, 16),
    Sketcher.Constraint("Equal", 15, 17),
    Sketcher.Constraint("Horizontal", 4, 3, 13, 3),
    Sketcher.Constraint("Horizontal", 5, 3, 14, 3),
    Sketcher.Constraint("Horizontal", 6, 3, 15, 3),
    Sketcher.Constraint("Horizontal", 7, 3, 16, 3),
    Sketcher.Constraint("Horizontal", 8, 3, 17, 3),
    Sketcher.Constraint("Horizontal", 1, 2, 9, 2),
    Sketcher.Constraint("Horizontal", 3, 2, 11, 2),
    Sketcher.Constraint("Vertical", 4, 3, 5, 3),
    Sketcher.Constraint("Vertical", 5, 3, 6, 3),
    Sketcher.Constraint("Vertical", 6, 3, 7, 3),
    Sketcher.Constraint("Vertical", 7, 3, 8, 3),
    Sketcher.Constraint("Vertical", 13, 3, 14, 3),
    Sketcher.Constraint("Vertical", 14, 3, 15, 3),
    Sketcher.Constraint("Vertical", 15, 3, 16, 3),
    Sketcher.Constraint("Vertical", 16, 3, 17, 3),
    Sketcher.Constraint("Equal", 3, 10),
    Sketcher.Constraint("Diameter", 4, Q("2.7 mm")),
    Sketcher.Constraint("Diameter", 5, Q("2.5 mm")),
    Sketcher.Constraint("DistanceY", 0, 1, 0, 2, Q("49.8 mm")),
    Sketcher.Constraint("DistanceY", 7, 3, -1, 1, Q("16 mm")),
    Sketcher.Constraint("DistanceY", 8, 3, -1, 1, Q("21 mm")),
    Sketcher.Constraint("DistanceY", 2, 2, -1, 1, Q("27 mm")),
    Sketcher.Constraint("DistanceY", 5, 3, 4, 3, Q("5 mm")),
    Sketcher.Constraint("DistanceY", 6, 3, 5, 3, Q("26 mm")),
    Sketcher.Constraint("DistanceX", 4, 3, 13, 3, Q("78 mm")),
    Sketcher.Constraint("DistanceX", 1, 1, 1, 2, Q("6.37 mm")),
    Sketcher.Constraint("DistanceY", -1, 1, 4, 3, Q("19.5 mm")),
    Sketcher.Constraint("DistanceX", 0, 2, 4, 3, Q("2.5 mm")),
    Sketcher.Constraint("DistanceX", 9, 2, 13, 3, Q("2.5 mm")),
    Sketcher.Constraint("DistanceX", 4, 3, -1, 1, Q("31.873864 mm")),
])
pad9 = doc.addObject("PartDesign::Pad", "Pad008")
body.addObject(pad9)
pad9.Profile = sketch11
pad9.Length = 3
pad9.Reversed = True

# Sketch on XZ plane
sketch12 = doc.addObject("Sketcher::SketchObject", "Sketch011")
body.addObject(sketch12)
sketch12.AttachmentSupport = (doc.XZ_Plane, [""])
sketch12.MapMode = "FlatFace"
sketch12.AttachmentOffset = App.Placement(App.Vector(0, 0, -3), App.Rotation())
sketch12.addGeometry([
    Part.LineSegment(App.Vector(-26, -40, 0), App.Vector(-26, 40, 0)),
    Part.LineSegment(App.Vector(-26, 40, 0), App.Vector(26, 40, 0)),
    Part.LineSegment(App.Vector(26, 40, 0), App.Vector(26, -40, 0)),
    Part.LineSegment(App.Vector(26, -40, 0), App.Vector(-26, -40, 0)),
], False)
sketch12.addConstraint([
    Sketcher.Constraint("Coincident", 0, 2, 1, 1),
    Sketcher.Constraint("Coincident", 1, 2, 2, 1),
    Sketcher.Constraint("Coincident", 2, 2, 3, 1),
    Sketcher.Constraint("Coincident", 3, 2, 0, 1),
    Sketcher.Constraint("Vertical", 0),
    Sketcher.Constraint("Horizontal", 1),
    Sketcher.Constraint("Vertical", 2),
    Sketcher.Constraint("Horizontal", 3),
    Sketcher.Constraint("Symmetric", 0, 2, 2, 2, -1, 1),
    Sketcher.Constraint("DistanceX", 1, 1, 1, 2, Q("53 mm")),
    Sketcher.Constraint("DistanceY", 0, 1, 0, 2, Q("80 mm")),
])
pocket3 = doc.addObject("PartDesign::Pocket", "Pocket002")
body.addObject(pocket3)
pocket3.Profile = sketch12
pocket3.Length = 3
pocket3.Reversed = True

doc.recompute()
